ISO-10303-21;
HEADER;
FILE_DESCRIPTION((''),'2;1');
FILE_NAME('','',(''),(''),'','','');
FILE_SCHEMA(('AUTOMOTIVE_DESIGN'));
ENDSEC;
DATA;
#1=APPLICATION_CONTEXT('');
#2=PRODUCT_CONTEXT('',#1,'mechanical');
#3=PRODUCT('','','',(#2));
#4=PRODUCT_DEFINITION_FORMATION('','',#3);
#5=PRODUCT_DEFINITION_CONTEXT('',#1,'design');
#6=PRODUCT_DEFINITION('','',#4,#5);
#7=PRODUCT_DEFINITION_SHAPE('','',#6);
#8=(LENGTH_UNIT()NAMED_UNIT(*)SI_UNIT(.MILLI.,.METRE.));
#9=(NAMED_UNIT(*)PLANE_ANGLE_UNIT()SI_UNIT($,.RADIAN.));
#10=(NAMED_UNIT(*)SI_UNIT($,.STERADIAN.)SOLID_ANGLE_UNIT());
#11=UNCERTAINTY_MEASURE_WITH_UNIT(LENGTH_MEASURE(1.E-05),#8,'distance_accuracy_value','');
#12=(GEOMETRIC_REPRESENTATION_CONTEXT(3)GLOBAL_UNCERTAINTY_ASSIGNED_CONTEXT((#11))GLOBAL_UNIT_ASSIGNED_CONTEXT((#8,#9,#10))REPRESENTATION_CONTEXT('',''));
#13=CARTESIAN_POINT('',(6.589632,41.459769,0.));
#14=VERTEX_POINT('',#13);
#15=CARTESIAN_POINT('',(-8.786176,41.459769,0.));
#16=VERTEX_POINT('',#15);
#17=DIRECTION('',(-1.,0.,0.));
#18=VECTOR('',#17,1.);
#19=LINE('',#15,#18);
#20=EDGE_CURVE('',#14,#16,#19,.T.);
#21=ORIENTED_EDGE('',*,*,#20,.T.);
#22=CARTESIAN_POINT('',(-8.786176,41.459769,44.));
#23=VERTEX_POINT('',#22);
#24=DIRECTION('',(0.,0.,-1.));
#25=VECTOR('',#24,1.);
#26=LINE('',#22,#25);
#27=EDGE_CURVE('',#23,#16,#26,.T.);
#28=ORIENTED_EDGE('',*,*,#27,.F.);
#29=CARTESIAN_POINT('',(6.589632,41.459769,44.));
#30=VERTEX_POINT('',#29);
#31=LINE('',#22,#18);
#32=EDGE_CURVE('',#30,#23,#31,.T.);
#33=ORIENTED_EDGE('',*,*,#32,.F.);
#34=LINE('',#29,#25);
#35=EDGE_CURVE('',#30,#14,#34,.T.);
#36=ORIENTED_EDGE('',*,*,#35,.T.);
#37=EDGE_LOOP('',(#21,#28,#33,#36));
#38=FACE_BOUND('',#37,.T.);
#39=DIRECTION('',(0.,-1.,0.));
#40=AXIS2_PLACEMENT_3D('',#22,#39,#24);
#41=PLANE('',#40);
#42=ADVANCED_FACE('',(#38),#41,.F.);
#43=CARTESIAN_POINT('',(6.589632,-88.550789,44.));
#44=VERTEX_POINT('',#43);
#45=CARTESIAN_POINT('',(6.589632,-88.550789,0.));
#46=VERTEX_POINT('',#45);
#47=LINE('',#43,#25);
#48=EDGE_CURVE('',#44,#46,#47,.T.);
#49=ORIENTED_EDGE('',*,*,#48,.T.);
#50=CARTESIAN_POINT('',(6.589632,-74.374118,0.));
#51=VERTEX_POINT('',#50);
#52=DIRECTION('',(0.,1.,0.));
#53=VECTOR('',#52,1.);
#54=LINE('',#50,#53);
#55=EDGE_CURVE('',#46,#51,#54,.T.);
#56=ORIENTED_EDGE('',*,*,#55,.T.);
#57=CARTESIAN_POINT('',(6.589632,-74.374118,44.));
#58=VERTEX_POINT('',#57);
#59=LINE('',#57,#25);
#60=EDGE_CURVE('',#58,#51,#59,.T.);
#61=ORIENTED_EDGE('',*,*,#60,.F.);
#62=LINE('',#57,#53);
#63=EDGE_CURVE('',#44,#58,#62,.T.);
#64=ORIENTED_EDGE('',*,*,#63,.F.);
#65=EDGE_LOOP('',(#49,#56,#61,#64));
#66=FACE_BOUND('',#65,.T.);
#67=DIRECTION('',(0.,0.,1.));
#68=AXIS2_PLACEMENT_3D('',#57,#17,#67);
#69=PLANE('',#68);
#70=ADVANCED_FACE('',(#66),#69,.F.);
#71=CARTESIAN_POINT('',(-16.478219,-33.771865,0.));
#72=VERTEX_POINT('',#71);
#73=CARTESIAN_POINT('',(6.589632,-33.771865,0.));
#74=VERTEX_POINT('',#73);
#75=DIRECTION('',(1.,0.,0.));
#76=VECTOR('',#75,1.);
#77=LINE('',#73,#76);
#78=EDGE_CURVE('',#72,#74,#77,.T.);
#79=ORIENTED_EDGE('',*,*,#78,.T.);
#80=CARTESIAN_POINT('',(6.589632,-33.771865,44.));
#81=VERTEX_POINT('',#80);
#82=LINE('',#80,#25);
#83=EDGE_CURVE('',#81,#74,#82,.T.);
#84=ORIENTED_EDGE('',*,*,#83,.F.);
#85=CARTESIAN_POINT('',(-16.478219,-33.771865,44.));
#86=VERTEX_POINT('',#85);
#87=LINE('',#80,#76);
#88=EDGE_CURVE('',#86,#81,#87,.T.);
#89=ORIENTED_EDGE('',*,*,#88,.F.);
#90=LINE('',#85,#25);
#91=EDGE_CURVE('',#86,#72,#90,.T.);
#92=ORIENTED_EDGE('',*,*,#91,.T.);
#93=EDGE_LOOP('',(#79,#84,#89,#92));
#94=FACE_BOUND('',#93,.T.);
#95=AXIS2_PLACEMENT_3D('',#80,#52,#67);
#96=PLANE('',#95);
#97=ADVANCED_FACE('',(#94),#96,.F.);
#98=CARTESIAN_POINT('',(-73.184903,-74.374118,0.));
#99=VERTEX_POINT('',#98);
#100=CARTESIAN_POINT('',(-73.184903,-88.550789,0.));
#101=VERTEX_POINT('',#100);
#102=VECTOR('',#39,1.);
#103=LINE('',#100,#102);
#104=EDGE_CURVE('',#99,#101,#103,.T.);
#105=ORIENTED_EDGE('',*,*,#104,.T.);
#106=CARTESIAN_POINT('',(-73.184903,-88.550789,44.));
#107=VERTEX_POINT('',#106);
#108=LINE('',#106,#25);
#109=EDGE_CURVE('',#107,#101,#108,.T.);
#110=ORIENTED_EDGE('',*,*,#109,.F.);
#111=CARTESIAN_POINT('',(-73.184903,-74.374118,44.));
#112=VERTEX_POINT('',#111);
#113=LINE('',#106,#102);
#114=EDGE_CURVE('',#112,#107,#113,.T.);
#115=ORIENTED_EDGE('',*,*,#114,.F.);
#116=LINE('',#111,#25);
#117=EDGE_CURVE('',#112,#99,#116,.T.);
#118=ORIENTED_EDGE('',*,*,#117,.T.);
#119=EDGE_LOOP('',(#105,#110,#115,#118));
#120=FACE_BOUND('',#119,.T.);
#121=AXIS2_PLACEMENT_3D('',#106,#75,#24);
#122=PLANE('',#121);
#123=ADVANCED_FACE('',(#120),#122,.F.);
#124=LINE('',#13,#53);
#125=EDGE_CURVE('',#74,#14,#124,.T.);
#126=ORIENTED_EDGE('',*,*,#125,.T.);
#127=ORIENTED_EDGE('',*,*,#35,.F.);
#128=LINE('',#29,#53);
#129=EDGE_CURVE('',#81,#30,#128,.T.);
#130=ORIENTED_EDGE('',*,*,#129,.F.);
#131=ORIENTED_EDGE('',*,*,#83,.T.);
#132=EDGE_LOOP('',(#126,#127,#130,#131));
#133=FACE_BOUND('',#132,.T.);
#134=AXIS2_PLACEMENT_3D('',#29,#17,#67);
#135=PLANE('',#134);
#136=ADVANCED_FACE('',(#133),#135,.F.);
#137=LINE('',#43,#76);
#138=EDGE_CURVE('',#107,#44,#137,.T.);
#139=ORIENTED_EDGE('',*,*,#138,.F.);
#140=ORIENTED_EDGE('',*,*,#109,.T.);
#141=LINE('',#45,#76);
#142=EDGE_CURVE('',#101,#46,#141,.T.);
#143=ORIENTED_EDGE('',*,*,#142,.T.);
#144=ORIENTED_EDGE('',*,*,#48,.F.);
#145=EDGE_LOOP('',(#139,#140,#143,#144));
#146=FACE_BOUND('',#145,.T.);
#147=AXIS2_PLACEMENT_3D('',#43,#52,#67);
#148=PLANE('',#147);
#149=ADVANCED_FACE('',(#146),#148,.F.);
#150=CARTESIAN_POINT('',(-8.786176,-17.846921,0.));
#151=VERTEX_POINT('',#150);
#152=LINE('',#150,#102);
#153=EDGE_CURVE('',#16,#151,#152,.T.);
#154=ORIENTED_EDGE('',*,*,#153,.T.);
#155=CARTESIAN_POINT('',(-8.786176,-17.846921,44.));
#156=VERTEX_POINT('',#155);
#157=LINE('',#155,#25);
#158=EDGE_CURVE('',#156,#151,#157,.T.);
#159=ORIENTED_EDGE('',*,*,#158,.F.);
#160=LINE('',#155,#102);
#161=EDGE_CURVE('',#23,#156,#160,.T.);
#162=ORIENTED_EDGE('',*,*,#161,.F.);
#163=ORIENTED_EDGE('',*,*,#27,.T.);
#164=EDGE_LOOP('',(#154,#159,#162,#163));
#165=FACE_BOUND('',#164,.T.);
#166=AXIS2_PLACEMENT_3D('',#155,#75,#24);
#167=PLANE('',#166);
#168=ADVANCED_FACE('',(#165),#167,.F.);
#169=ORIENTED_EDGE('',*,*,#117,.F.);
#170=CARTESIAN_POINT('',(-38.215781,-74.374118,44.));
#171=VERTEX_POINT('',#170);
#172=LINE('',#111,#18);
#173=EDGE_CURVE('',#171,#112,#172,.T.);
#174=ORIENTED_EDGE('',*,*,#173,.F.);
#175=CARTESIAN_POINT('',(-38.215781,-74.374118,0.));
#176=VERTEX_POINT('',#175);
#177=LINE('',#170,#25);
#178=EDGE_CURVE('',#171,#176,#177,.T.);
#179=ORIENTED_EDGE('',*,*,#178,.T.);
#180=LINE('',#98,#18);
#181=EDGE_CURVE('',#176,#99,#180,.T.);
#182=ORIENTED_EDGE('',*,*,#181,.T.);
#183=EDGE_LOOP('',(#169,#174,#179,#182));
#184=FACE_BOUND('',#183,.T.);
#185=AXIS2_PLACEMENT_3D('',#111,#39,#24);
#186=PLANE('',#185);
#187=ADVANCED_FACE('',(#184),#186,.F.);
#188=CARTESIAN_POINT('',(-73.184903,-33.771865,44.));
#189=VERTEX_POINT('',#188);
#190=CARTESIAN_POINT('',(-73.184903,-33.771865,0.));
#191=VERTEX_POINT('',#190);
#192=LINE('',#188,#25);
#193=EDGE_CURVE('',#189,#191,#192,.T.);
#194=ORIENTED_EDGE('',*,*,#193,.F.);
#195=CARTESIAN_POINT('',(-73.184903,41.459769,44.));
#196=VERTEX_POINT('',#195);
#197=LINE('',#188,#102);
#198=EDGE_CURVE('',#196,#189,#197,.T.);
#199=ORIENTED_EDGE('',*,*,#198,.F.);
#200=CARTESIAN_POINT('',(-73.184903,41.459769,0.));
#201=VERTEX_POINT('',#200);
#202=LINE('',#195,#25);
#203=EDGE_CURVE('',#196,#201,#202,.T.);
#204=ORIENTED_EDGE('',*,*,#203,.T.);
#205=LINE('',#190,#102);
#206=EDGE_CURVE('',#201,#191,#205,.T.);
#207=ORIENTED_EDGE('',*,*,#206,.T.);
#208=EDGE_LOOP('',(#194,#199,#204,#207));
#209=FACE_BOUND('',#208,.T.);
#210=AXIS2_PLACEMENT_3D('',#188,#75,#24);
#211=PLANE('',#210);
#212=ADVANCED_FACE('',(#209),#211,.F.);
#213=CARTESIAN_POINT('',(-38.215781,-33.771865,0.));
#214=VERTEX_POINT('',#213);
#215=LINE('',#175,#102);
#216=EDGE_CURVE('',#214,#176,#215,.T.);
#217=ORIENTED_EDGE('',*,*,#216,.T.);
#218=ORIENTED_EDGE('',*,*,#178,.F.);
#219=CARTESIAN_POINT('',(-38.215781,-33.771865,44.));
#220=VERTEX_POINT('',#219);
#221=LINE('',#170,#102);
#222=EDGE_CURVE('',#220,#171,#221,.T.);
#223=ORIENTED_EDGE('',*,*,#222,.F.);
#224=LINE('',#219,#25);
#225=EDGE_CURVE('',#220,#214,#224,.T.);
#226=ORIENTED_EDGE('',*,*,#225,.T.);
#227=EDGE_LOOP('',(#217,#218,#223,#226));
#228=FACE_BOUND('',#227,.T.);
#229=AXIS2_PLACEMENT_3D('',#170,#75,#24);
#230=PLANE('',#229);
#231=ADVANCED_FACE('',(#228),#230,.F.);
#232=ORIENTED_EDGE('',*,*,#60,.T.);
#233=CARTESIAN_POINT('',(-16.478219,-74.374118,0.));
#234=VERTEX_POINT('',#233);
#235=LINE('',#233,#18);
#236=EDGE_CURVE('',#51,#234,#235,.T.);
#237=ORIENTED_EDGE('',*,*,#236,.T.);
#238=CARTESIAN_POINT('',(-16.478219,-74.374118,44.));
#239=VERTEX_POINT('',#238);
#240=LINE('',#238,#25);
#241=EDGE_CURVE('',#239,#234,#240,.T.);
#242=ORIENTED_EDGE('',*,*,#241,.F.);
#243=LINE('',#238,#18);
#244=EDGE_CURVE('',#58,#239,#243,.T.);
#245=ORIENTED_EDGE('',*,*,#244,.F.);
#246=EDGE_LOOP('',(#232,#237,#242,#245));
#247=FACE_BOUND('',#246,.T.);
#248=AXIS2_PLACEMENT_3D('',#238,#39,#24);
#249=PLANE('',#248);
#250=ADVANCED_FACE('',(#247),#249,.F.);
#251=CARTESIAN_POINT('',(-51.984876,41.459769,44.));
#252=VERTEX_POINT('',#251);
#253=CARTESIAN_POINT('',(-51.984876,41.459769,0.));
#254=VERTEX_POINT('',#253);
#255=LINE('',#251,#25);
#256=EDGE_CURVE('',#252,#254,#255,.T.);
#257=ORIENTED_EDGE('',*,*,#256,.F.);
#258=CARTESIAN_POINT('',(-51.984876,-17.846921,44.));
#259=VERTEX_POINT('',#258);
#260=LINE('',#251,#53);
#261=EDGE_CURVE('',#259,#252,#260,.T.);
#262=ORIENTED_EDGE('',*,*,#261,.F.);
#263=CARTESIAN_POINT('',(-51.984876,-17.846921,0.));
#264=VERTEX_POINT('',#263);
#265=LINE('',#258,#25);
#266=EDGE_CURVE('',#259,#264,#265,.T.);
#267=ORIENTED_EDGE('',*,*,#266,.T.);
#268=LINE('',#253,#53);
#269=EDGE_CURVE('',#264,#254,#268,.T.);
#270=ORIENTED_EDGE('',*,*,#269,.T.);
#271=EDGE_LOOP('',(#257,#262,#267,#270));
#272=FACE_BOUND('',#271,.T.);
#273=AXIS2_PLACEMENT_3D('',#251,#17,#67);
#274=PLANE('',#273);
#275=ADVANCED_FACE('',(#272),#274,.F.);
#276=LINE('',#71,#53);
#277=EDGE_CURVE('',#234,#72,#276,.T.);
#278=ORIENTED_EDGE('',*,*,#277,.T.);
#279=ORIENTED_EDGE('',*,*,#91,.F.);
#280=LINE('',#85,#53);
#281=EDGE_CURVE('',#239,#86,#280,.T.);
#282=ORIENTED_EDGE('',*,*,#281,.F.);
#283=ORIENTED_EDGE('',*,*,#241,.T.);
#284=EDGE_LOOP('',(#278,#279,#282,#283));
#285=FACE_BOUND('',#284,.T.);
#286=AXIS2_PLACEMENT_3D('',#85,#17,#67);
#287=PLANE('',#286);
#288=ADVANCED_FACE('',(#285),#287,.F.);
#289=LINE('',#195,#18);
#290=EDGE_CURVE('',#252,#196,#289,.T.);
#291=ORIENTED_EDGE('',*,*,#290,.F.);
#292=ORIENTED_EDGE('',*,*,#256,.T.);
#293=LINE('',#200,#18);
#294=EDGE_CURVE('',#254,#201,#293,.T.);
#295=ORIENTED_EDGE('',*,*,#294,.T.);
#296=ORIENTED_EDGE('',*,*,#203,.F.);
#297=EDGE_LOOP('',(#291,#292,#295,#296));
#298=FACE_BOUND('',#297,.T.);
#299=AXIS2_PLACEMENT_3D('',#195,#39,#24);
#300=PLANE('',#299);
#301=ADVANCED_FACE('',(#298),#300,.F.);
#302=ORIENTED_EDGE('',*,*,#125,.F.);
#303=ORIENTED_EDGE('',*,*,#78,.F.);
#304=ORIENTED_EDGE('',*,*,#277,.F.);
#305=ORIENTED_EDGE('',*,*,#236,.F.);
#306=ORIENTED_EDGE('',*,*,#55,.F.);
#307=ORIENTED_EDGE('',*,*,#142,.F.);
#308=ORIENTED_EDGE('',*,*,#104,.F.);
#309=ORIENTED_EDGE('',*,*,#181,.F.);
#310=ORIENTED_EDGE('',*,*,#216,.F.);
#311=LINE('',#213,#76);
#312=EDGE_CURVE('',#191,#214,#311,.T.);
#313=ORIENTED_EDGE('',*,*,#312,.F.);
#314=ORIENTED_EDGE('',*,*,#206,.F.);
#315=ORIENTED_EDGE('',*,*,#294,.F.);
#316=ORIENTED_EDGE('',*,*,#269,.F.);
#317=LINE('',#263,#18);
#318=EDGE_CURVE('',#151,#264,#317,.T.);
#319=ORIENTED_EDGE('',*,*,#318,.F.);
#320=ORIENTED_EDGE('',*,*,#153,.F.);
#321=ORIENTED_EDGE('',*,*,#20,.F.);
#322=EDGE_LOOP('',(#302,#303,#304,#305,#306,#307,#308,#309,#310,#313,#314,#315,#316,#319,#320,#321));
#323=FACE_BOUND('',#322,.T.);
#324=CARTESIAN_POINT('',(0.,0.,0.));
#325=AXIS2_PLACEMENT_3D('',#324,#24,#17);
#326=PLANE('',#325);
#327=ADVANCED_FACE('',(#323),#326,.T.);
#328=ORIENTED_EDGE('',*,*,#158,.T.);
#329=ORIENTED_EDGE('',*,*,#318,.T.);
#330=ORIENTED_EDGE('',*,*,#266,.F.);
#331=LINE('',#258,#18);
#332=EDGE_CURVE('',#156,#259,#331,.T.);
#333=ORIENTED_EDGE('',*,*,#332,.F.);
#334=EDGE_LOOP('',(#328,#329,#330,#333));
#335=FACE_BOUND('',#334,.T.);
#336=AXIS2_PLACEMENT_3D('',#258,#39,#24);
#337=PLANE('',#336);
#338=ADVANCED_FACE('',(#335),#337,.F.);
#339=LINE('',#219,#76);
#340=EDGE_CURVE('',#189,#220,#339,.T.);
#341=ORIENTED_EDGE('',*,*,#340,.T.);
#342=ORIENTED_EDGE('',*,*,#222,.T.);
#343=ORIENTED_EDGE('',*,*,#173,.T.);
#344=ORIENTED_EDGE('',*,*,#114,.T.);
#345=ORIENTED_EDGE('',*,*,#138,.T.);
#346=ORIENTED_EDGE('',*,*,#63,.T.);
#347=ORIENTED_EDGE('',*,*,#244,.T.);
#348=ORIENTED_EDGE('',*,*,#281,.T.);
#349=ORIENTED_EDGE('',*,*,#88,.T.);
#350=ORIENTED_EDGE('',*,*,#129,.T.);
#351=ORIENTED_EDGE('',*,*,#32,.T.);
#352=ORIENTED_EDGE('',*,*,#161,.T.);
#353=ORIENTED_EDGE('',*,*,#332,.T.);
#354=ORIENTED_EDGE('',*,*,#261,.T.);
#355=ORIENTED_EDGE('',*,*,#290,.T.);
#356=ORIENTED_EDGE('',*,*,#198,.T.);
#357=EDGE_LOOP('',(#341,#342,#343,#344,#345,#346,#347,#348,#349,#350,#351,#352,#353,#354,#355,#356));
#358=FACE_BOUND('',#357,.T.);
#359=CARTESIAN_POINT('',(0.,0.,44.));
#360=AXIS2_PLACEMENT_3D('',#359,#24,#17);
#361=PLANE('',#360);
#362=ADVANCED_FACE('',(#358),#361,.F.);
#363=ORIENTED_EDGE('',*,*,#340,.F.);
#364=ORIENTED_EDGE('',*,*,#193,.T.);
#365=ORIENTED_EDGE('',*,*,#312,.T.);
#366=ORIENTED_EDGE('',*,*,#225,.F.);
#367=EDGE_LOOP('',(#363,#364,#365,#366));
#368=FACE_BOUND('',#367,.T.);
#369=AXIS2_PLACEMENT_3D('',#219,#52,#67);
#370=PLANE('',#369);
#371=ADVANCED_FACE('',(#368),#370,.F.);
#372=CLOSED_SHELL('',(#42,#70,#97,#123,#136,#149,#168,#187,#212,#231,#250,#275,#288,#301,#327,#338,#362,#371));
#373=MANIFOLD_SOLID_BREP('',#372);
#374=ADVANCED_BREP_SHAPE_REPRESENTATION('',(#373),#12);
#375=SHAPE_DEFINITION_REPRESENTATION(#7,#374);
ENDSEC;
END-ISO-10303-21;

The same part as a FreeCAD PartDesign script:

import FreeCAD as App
import Part
import Sketcher
from FreeCAD import Vector


def add_polygon(sketch, points):
    """Adds a closed chain of lines whose ends are joined by coincident constraints."""
    first, n = sketch.GeometryCount, len(points)
    for a, b in zip(points, points[1:] + points[:1]):
        sketch.addGeometry(Part.LineSegment(App.Vector(*a, 0), App.Vector(*b, 0)), False)
    for i in range(n):
        sketch.addConstraint(Sketcher.Constraint("Coincident", first + i, 2, first + (i + 1) % n, 1))

doc = App.newDocument("Part")
body = doc.addObject("PartDesign::Body", "Body")

sketch1 = body.newObject("Sketcher::SketchObject", "Sketch")
sketch1.AttachmentSupport = (doc.getObject("XY_Plane"), [""])
sketch1.MapMode = "FlatFace"
add_polygon(sketch1, [(-52, -18), (-52, 41), (-73, 41), (-73, -34), (-38, -34), (-38, -74), (-73, -74), (-73, -89), (7, -89), (7, -74), (-16, -74), (-16, -34), (7, -34), (7, 41), (-9, 41), (-9, -18)])
sketch1.addConstraint([
    Sketcher.Constraint("Vertical", 0),
    Sketcher.Constraint("Horizontal", 1),
    Sketcher.Constraint("Vertical", 2),
    Sketcher.Constraint("Horizontal", 3),
    Sketcher.Constraint("Vertical", 4),
    Sketcher.Constraint("Horizontal", 5),
    Sketcher.Constraint("Vertical", 6),
    Sketcher.Constraint("Horizontal", 7),
    Sketcher.Constraint("Vertical", 8),
    Sketcher.Constraint("Horizontal", 9),
    Sketcher.Constraint("Vertical", 10),
    Sketcher.Constraint("Horizontal", 11),
    Sketcher.Constraint("Vertical", 12),
    Sketcher.Constraint("Horizontal", 13),
    Sketcher.Constraint("Vertical", 14),
    Sketcher.Constraint("Horizontal", 15),
    Sketcher.Constraint("Horizontal", 5, 2, 8, 2),
    Sketcher.Constraint("Horizontal", 3, 2, 10, 2),
    Sketcher.Constraint("Horizontal", 1, 2, 12, 2),
    Sketcher.Constraint("Vertical", 2, 2, 5, 2),
    Sketcher.Constraint("Vertical", 8, 2, 11, 2),
    Sketcher.Constraint("DistanceX", 15, 2, 15, 1, 43.1987),
    Sketcher.Constraint("DistanceX", 9, 2, 9, 1, 23.067851),
    Sketcher.Constraint("DistanceX", 13, 2, 13, 1, 15.375808),
    Sketcher.Constraint("DistanceY", 0, 1, 0, 2, 59.30669),
    Sketcher.Constraint("DistanceY", 6, 2, 6, 1, 14.176671),
    Sketcher.Constraint("DistanceX", 1, 2, 1, 1, 21.200027),
    Sketcher.Constraint("DistanceX", 3, 1, 3, 2, 34.969122),
    Sketcher.Constraint("DistanceY", 2, 2, 2, 1, 75.231634),
    Sketcher.Constraint("DistanceY", 4, 2, 4, 1, 40.602253),
    Sketcher.Constraint("DistanceY", -1, 1, 0, 2, 41.459769),
    Sketcher.Constraint("DistanceX", 3, 2, -1, 1, 38.215781),
])
pad1 = body.newObject("PartDesign::Pad", "Pad")
pad1.Profile = sketch1
pad1.Length = 44

doc.recompute()
